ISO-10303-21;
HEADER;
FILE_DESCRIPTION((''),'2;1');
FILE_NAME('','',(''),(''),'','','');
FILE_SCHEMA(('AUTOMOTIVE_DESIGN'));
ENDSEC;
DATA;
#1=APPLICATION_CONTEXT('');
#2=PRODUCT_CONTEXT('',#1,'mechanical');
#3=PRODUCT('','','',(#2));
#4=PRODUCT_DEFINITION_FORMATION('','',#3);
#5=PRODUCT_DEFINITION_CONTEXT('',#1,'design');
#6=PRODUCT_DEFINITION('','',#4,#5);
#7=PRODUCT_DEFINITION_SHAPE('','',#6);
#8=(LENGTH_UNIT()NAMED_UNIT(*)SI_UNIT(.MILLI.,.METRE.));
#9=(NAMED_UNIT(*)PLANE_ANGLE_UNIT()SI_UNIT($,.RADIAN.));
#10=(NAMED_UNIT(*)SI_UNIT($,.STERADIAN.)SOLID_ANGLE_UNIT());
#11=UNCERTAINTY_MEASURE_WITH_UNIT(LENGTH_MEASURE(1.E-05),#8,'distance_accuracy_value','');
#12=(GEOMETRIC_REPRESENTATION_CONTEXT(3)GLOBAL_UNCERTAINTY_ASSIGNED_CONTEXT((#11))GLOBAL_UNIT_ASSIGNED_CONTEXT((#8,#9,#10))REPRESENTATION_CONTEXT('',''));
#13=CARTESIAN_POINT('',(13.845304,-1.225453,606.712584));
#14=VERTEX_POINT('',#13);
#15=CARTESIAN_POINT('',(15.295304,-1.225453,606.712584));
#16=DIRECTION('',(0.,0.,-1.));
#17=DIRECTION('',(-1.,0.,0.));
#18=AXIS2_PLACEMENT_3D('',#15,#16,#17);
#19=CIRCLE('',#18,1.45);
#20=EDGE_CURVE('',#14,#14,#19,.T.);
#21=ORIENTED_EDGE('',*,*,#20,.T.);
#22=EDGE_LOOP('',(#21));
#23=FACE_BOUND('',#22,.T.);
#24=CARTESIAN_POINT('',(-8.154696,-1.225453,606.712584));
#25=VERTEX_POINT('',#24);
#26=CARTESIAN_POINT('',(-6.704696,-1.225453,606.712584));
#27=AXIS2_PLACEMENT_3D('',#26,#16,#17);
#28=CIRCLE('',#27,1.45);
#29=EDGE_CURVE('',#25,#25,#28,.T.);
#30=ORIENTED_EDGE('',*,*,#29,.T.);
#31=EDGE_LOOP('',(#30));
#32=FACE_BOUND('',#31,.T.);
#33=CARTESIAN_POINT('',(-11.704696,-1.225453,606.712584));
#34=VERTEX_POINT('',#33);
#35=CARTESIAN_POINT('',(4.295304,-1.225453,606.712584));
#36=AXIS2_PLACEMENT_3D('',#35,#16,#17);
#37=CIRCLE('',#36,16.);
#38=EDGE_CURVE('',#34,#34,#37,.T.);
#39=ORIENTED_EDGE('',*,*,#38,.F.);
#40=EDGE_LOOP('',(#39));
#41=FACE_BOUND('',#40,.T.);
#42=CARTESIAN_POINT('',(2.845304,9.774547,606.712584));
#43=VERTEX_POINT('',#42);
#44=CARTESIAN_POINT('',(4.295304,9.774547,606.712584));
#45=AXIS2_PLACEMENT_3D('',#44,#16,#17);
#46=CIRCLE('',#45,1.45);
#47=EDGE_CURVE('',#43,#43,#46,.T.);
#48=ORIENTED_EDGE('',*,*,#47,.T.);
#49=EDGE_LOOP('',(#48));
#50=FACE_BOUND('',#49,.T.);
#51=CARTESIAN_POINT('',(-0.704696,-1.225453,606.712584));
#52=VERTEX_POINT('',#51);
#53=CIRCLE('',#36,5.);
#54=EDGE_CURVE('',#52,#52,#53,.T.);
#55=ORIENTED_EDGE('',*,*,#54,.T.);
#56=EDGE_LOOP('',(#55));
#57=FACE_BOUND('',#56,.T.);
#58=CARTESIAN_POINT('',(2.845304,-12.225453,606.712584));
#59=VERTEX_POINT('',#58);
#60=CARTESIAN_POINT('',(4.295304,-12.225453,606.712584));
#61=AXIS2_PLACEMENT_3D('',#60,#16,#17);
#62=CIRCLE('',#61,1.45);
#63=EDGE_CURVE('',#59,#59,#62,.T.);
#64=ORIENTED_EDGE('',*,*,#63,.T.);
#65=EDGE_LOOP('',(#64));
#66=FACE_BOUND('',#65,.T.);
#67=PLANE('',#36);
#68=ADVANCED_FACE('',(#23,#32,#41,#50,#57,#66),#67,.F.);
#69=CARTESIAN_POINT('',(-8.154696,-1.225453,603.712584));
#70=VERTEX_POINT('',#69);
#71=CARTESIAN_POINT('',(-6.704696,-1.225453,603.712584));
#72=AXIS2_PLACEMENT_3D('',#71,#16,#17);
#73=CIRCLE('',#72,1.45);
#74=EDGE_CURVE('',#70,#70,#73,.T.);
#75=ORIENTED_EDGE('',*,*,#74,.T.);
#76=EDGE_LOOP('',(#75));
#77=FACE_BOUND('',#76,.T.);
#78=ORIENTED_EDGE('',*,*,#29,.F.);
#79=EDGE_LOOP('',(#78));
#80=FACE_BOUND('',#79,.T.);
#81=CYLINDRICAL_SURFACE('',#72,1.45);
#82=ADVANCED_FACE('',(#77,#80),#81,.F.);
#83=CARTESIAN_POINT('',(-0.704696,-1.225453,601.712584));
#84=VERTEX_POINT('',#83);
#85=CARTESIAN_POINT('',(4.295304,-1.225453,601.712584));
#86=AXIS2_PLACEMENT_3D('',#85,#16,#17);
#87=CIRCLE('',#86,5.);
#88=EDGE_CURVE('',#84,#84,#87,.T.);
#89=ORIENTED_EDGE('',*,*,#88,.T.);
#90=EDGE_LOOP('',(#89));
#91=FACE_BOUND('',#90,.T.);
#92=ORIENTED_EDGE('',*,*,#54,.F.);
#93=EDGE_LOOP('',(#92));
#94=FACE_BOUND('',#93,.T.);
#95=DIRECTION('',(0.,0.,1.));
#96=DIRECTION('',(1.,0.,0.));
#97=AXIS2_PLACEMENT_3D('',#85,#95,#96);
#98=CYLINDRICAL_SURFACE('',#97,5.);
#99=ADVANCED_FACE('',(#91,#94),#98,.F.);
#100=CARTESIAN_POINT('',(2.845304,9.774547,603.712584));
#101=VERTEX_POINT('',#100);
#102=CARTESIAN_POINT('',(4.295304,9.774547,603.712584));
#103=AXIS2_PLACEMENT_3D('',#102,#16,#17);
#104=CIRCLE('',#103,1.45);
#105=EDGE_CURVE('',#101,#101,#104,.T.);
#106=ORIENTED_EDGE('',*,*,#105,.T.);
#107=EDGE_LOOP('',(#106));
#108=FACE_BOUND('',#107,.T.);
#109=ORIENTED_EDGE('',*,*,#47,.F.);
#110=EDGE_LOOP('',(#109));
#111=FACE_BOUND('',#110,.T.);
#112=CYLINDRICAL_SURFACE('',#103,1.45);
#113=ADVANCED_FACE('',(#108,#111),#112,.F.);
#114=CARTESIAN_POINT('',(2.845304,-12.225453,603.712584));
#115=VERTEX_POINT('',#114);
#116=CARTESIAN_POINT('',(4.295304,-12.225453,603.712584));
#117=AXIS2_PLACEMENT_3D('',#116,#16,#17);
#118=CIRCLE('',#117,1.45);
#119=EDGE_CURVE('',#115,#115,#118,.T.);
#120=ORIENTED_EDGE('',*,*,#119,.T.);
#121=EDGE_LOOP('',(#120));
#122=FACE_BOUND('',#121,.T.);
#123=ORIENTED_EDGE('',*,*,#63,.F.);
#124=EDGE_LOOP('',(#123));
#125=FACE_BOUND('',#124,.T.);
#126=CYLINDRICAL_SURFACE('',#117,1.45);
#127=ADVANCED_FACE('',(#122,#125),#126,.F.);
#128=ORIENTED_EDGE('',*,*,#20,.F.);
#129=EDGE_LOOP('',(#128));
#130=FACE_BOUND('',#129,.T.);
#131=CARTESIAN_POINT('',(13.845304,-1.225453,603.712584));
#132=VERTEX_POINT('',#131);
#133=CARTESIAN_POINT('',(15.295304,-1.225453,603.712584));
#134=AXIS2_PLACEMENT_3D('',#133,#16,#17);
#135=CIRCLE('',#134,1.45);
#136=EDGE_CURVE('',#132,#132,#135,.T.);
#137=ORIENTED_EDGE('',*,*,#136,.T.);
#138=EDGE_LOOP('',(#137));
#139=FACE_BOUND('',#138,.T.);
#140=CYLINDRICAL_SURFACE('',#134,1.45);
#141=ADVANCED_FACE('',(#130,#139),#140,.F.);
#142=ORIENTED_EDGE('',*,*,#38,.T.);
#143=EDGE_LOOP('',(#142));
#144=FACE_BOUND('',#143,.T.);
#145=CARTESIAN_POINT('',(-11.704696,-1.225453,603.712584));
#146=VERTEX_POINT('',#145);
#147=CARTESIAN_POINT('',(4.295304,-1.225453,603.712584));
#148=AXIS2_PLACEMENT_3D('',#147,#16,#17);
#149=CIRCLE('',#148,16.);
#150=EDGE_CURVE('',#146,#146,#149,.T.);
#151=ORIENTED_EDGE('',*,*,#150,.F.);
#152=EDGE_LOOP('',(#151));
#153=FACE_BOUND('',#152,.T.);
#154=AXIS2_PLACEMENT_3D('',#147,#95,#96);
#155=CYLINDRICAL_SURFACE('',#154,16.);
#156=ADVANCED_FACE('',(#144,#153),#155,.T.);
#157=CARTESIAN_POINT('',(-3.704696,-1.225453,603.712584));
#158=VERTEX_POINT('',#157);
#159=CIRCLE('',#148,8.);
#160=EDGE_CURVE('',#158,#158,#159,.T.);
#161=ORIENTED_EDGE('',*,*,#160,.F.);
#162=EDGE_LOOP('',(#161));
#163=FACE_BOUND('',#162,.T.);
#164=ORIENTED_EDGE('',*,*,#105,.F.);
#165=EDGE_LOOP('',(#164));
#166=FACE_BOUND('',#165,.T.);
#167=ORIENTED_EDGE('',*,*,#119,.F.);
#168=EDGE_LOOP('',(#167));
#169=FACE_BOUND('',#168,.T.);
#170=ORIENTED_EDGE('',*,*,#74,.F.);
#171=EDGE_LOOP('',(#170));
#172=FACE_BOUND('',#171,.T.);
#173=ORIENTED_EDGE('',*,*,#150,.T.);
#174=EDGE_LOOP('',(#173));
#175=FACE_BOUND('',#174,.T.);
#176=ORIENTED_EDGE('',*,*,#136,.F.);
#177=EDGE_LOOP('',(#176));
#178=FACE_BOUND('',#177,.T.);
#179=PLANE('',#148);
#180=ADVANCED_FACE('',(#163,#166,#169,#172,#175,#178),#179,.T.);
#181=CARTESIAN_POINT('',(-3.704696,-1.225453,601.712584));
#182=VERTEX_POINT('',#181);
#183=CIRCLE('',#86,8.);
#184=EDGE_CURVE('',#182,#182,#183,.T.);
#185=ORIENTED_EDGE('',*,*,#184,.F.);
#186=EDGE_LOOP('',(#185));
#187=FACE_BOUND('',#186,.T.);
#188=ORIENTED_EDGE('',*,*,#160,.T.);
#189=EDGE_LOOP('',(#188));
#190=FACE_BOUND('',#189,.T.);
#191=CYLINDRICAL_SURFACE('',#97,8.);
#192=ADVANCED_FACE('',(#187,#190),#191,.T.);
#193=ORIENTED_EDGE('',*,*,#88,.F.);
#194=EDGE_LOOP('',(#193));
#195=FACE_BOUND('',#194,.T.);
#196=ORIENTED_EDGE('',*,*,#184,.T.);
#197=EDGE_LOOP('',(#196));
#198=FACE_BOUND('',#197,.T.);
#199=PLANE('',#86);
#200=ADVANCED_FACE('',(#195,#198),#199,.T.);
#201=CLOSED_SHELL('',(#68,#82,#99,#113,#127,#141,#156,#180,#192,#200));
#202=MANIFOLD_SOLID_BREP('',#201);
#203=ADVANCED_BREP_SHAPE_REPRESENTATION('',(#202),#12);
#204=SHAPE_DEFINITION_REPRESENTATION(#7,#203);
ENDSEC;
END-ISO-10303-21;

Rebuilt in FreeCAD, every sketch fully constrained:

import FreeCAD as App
import Part
import Sketcher

V = App.Vector
Q = App.Units.Quantity

doc = App.newDocument("Part")
body = doc.addObject("PartDesign::Body", "Body")

# Sketch on XY plane
sketch1 = doc.addObject("Sketcher::SketchObject", "Sketch")
body.addObject(sketch1)
sketch1.AttachmentSupport = (doc.XY_Plane, [""])
sketch1.MapMode = "FlatFace"
sketch1.AttachmentOffset = App.Placement(V(0, 0, 606.712584), App.Rotation())
sketch1.addGeometry([
    Part.Circle(V(4, -1, 0), V(0, 0, 1), 8),
    Part.Circle(V(4, -1, 0), V(0, 0, 1), 5),
], False)
sketch1.addConstraint([
    Sketcher.Constraint("Coincident", 1, 3, 0, 3),
    Sketcher.Constraint("Diameter", 0, Q("16 mm")),
    Sketcher.Constraint("Diameter", 1, Q("10 mm")),
    Sketcher.Constraint("DistanceX", -1, 1, 0, 3, Q("4.295304 mm")),
    Sketcher.Constraint("DistanceY", 0, 3, -1, 1, Q("1.225453 mm")),
])
pad1 = doc.addObject("PartDesign::Pad", "Pad")
body.addObject(pad1)
pad1.Profile = sketch1
pad1.Length = 5
pad1.Reversed = True

# Sketch on XY plane
sketch2 = doc.addObject("Sketcher::SketchObject", "Sketch001")
body.addObject(sketch2)
sketch2.AttachmentSupport = (doc.XY_Plane, [""])
sketch2.MapMode = "FlatFace"
sketch2.AttachmentOffset = App.Placement(V(0, 0, 606.712584), App.Rotation())
sketch2.addGeometry([
    Part.Circle(V(4, -1, 0), V(0, 0, 1), 16),
    Part.Circle(V(4, -1, 0), V(0, 0, 1), 8),
], False)
sketch2.addConstraint([
    Sketcher.Constraint("Coincident", 1, 3, 0, 3),
    Sketcher.Constraint("Diameter", 0, Q("32 mm")),
    Sketcher.Constraint("Diameter", 1, Q("16 mm")),
    Sketcher.Constraint("DistanceX", -1, 1, 0, 3, Q("4.295304 mm")),
    Sketcher.Constraint("DistanceY", 0, 3, -1, 1, Q("1.225453 mm")),
])
pad2 = doc.addObject("PartDesign::Pad", "Pad001")
body.addObject(pad2)
pad2.Profile = sketch2
pad2.Length = 3
pad2.Reversed = True

# Sketch on XY plane
sketch3 = doc.addObject("Sketcher::SketchObject", "Sketch002")
body.addObject(sketch3)
sketch3.AttachmentSupport = (doc.XY_Plane, [""])
sketch3.MapMode = "FlatFace"
sketch3.AttachmentOffset = App.Placement(V(0, 0, 603.712584), App.Rotation())
sketch3.addGeometry([
    Part.Circle(V(4, -1, 0), V(0, 0, 1), 16),
    Part.Circle(V(4, -1, 0), V(0, 0, 1), 12),
], False)
sketch3.addConstraint([
    Sketcher.Constraint("Coincident", 1, 3, 0, 3),
    Sketcher.Constraint("Diameter", 0, Q("32 mm")),
    Sketcher.Constraint("Diameter", 1, Q("25 mm")),
    Sketcher.Constraint("DistanceX", -1, 1, 0, 3, Q("4.295304 mm")),
    Sketcher.Constraint("DistanceY", 0, 3, -1, 1, Q("1.225453 mm")),
])
pad3 = doc.addObject("PartDesign::Pad", "Pad002")
body.addObject(pad3)
pad3.Profile = sketch3
pad3.Length = 3

# Sketch on XY plane
sketch4 = doc.addObject("Sketcher::SketchObject", "Sketch003")
body.addObject(sketch4)
sketch4.AttachmentSupport = (doc.XY_Plane, [""])
sketch4.MapMode = "FlatFace"
sketch4.AttachmentOffset = App.Placement(V(0, 0, 603.712584), App.Rotation())
sketch4.addGeometry([
    Part.Circle(V(4.3, 9.8, 0), V(0, 0, 1), 1.4),
    Part.Circle(V(-6.7, -1.2, 0), V(0, 0, 1), 1.4),
    Part.Circle(V(4.3, -12.2, 0), V(0, 0, 1), 1.4),
    Part.Circle(V(15.3, -1.2, 0), V(0, 0, 1), 1.4),
], False)
sketch4.addConstraint([
    Sketcher.Constraint("Equal", 0, 1),
    Sketcher.Constraint("Equal", 1, 2),
    Sketcher.Constraint("Equal", 2, 3),
    Sketcher.Constraint("Horizontal", 1, 3, 3, 3),
    Sketcher.Constraint("Vertical", 0, 3, 2, 3),
    Sketcher.Constraint("Diameter", 0, Q("2.9 mm")),
    Sketcher.Constraint("DistanceX", 1, 3, 0, 3, Q("11 mm")),
    Sketcher.Constraint("DistanceY", 1, 3, 0, 3, Q("11 mm")),
    Sketcher.Constraint("DistanceY", 2, 3, 1, 3, Q("11 mm")),
    Sketcher.Constraint("DistanceX", 0, 3, 3, 3, Q("11 mm")),
    Sketcher.Constraint("DistanceX", -1, 1, 0, 3, Q("4.295304 mm")),
    Sketcher.Constraint("DistanceY", -1, 1, 0, 3, Q("9.774547 mm")),
])
doc.recompute()
hole = doc.addObject("PartDesign::Hole", "Hole")
body.addObject(hole)
hole.Profile = sketch4
hole.ThreadType = "None"
hole.Diameter = 2.9
hole.DepthType = "ThroughAll"
hole.Reversed = True

doc.recompute()
